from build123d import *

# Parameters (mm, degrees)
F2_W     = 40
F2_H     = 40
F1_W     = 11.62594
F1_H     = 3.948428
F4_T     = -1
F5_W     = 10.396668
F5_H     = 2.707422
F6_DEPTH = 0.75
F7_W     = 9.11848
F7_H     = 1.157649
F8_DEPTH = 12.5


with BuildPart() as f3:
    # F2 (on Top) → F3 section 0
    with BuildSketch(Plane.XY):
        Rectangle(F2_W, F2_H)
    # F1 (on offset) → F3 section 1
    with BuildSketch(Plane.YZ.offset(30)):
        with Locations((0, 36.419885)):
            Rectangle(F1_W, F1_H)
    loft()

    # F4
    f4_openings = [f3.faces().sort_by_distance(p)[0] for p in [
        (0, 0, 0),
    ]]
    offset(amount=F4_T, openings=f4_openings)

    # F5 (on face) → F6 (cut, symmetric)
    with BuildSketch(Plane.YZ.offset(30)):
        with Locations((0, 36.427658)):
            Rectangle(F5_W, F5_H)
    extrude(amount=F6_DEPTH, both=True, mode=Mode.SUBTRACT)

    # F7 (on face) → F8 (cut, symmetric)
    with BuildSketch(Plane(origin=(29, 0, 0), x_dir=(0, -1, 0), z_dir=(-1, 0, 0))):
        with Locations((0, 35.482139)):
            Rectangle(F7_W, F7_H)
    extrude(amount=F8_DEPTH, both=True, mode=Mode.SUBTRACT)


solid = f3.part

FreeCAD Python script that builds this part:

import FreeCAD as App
import Part
import Sketcher

V = App.Vector


def faces_at(feature, points):
    """Names of the faces that lie closest to the given points."""
    faces = feature.Shape.Faces
    near = lambda p: min(range(len(faces)), key=lambda i: faces[i].distToShape(Part.Vertex(*p))[0])
    return sorted({f"Face{near(p) + 1}" for p in points})


def add_polygon(sketch, points):
    """Adds a closed chain of lines whose ends are joined by coincident constraints."""
    first, n = sketch.GeometryCount, len(points)
    for a, b in zip(points, points[1:] + points[:1]):
        sketch.addGeometry(Part.LineSegment(App.Vector(*a, 0), App.Vector(*b, 0)), False)
    for i in range(n):
        sketch.addConstraint(Sketcher.Constraint("Coincident", first + i, 2, first + (i + 1) % n, 1))

doc = App.newDocument("Part")
body = doc.addObject("PartDesign::Body", "Body")

# Sketch on XY plane
sketch1 = body.newObject("Sketcher::SketchObject", "Sketch")
sketch1.AttachmentSupport = (doc.getObject("XY_Plane"), [""])
sketch1.MapMode = "FlatFace"
add_polygon(sketch1, [(-20, 20), (-20, -20), (20, -20), (20, 20)])  # lines 0-3
sketch1.addConstraint([
    Sketcher.Constraint("Vertical", 0),
    Sketcher.Constraint("Horizontal", 1),
    Sketcher.Constraint("Vertical", 2),
    Sketcher.Constraint("Horizontal", 3),
    Sketcher.Constraint("Symmetric", 0, 2, 2, 2, -1, 1),
    Sketcher.Constraint("Equal", 3, 0),
    Sketcher.Constraint("DistanceX", 1, 1, 1, 2, 40.0),
])

# Sketch on YZ plane
sketch2 = body.newObject("Sketcher::SketchObject", "Sketch001")
sketch2.AttachmentSupport = (doc.getObject("YZ_Plane"), [""])
sketch2.MapMode = "FlatFace"
sketch2.AttachmentOffset = App.Placement(V(0, 0, 30), App.Rotation())
add_polygon(sketch2, [(-5.8, 38.4), (-5.8, 34.4), (5.8, 34.4), (5.8, 38.4)])  # lines 0-3
sketch2.addConstraint([
    Sketcher.Constraint("Vertical", 0),
    Sketcher.Constraint("Horizontal", 1),
    Sketcher.Constraint("Vertical", 2),
    Sketcher.Constraint("Horizontal", 3),
    Sketcher.Constraint("DistanceX", 1, 1, 1, 2, 11.62594),
    Sketcher.Constraint("DistanceY", -1, 1, 2, 2, 38.394099),
    Sketcher.Constraint("DistanceY", 0, 2, 0, 1, 3.948428),
    Sketcher.Constraint("DistanceX", 0, 2, -1, 1, 5.81297),
])

additiveloft = body.newObject("PartDesign::AdditiveLoft", "AdditiveLoft")
additiveloft.Profile = sketch1
additiveloft.Sections = [sketch2]
doc.recompute()

thickness = body.newObject("PartDesign::Thickness", "Thickness")
thickness.Base = (additiveloft, faces_at(additiveloft, [(0, 0, 0)]))
thickness.Value = 1
thickness.Reversed = True
thickness.Join = "Arc"

# Sketch on YZ plane
sketch3 = body.newObject("Sketcher::SketchObject", "Sketch002")
sketch3.AttachmentSupport = (doc.getObject("YZ_Plane"), [""])
sketch3.MapMode = "FlatFace"
sketch3.AttachmentOffset = App.Placement(V(0, 0, 30), App.Rotation())
add_polygon(sketch3, [(-5.2, 37.8), (-5.2, 35.1), (5.2, 35.1), (5.2, 37.8)])  # lines 0-3
sketch3.addConstraint([
    Sketcher.Constraint("Vertical", 0),
    Sketcher.Constraint("Horizontal", 1),
    Sketcher.Constraint("Vertical", 2),
    Sketcher.Constraint("Horizontal", 3),
    Sketcher.Constraint("DistanceX", 1, 1, 1, 2, 10.396668),
    Sketcher.Constraint("DistanceY", 0, 2, 0, 1, 2.707422),
    Sketcher.Constraint("DistanceY", -1, 1, 2, 2, 37.781369),
    Sketcher.Constraint("DistanceX", 0, 2, -1, 1, 5.198334),
])
pocket1 = body.newObject("PartDesign::Pocket", "Pocket")
pocket1.Profile = sketch3
pocket1.Length = 1.5
pocket1.Midplane = True

# Sketch on YZ plane
sketch4 = body.newObject("Sketcher::SketchObject", "Sketch003")
sketch4.AttachmentSupport = (doc.getObject("YZ_Plane"), [""])
sketch4.MapMode = "FlatFace"
sketch4.AttachmentOffset = App.Placement(V(0, 0, 29), App.Rotation())
add_polygon(sketch4, [(4.6, 36.1), (4.6, 34.9), (-4.6, 34.9), (-4.6, 36.1)])  # lines 0-3
sketch4.addConstraint([
    Sketcher.Constraint("Vertical", 0),
    Sketcher.Constraint("Horizontal", 1),
    Sketcher.Constraint("Vertical", 2),
    Sketcher.Constraint("Horizontal", 3),
    Sketcher.Constraint("DistanceX", 1, 2, 1, 1, 9.11848),
    Sketcher.Constraint("DistanceY", 0, 2, 0, 1, 1.157649),
    Sketcher.Constraint("DistanceX", -1, 1, 0, 2, 4.55924),
    Sketcher.Constraint("DistanceY", -1, 1, 0, 2, 34.903315),
])
pocket2 = body.newObject("PartDesign::Pocket", "Pocket001")
pocket2.Profile = sketch4
pocket2.Length = 25
pocket2.Midplane = True

doc.recompute()
